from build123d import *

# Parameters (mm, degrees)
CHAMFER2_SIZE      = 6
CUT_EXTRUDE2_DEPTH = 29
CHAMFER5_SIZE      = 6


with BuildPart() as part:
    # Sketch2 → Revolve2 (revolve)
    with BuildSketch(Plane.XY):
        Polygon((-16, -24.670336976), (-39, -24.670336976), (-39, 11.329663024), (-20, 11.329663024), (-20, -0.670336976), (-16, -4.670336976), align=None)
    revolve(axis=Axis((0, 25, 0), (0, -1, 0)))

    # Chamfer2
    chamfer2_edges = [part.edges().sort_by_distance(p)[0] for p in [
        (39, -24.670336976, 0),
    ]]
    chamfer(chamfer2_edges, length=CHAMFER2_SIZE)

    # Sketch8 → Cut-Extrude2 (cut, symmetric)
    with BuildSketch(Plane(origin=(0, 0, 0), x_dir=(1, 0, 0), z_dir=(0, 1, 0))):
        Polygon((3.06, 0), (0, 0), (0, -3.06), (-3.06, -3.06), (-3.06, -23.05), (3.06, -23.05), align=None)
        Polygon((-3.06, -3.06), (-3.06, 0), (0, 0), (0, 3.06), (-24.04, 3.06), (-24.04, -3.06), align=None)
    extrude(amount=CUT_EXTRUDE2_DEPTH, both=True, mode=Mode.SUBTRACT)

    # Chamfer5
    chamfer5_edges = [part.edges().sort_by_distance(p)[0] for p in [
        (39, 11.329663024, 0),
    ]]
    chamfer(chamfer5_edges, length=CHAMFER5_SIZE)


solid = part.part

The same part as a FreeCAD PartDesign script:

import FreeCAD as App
import Part
import Sketcher
from FreeCAD import Vector


def edges_at(feature, points):
    """Names of the edges that pass closest to the given points."""
    edges = feature.Shape.Edges
    near = lambda p: min(range(len(edges)), key=lambda i: edges[i].distToShape(Part.Vertex(*p))[0])
    return sorted({f"Edge{near(p) + 1}" for p in points})

doc = App.newDocument("Part")
body = doc.addObject("PartDesign::Body", "Body")

sketch1 = doc.addObject("Sketcher::SketchObject", "Sketch")
body.addObject(sketch1)
sketch1.AttachmentSupport = (doc.XY_Plane, [""])
sketch1.MapMode = "FlatFace"
sketch1.addGeometry([
    Part.LineSegment(Vector(-39, -25, 0), Vector(-16, -25, 0)),
    Part.LineSegment(Vector(-16, -25, 0), Vector(-16, -5, 0)),
    Part.LineSegment(Vector(-16, -5, 0), Vector(-20, -1, 0)),
    Part.LineSegment(Vector(-20, -1, 0), Vector(-20, 11, 0)),
    Part.LineSegment(Vector(-20, 11, 0), Vector(-39, 11, 0)),
    Part.LineSegment(Vector(-39, 11, 0), Vector(-39, -25, 0)),
], False)
sketch1.addConstraint([
    Sketcher.Constraint("Coincident", 0, 2, 1, 1),
    Sketcher.Constraint("Coincident", 1, 2, 2, 1),
    Sketcher.Constraint("Coincident", 2, 2, 3, 1),
    Sketcher.Constraint("Coincident", 3, 2, 4, 1),
    Sketcher.Constraint("Coincident", 4, 2, 5, 1),
    Sketcher.Constraint("Coincident", 5, 2, 0, 1),
    Sketcher.Constraint("Horizontal", 0),
    Sketcher.Constraint("Vertical", 1),
    Sketcher.Constraint("Vertical", 3),
    Sketcher.Constraint("Horizontal", 4),
    Sketcher.Constraint("Vertical", 5),
    Sketcher.Constraint("DistanceX", 0, 1, 0, 2, 23.0),
    Sketcher.Constraint("DistanceX", 4, 2, 4, 1, 19.0),
    Sketcher.Constraint("DistanceY", 1, 1, 1, 2, 20.0),
    Sketcher.Constraint("DistanceY", 3, 1, 3, 2, 12.0),
    Sketcher.Constraint("DistanceY", 5, 2, 5, 1, 36.0),
    Sketcher.Constraint("DistanceX", 0, 2, -1, 1, 16.0),
    Sketcher.Constraint("DistanceY", 0, 2, -1, 1, 24.670337),
])
revolution = doc.addObject("PartDesign::Revolution", "Revolution")
body.addObject(revolution)
revolution.Profile = sketch1
revolution.ReferenceAxis = (sketch1, ["V_Axis"])
revolution.Angle = 360
doc.recompute()

chamfer = doc.addObject("PartDesign::Chamfer", "Chamfer")
body.addObject(chamfer)
chamfer.Base = (revolution, edges_at(revolution, [(39, -24.67, 0)]))
chamfer.Size = 6

sketch2 = doc.addObject("Sketcher::SketchObject", "Sketch001")
body.addObject(sketch2)
sketch2.AttachmentSupport = (doc.XZ_Plane, [""])
sketch2.MapMode = "FlatFace"
sketch2.addGeometry([
    Part.LineSegment(Vector(3.1, 0, 0), Vector(0, 0, 0)),
    Part.LineSegment(Vector(0, 0, 0), Vector(0, 3.1, 0)),
    Part.LineSegment(Vector(0, 3.1, 0), Vector(-3.1, 3.1, 0)),
    Part.LineSegment(Vector(-3.1, 3.1, 0), Vector(-3.1, 23.1, 0)),
    Part.LineSegment(Vector(-3.1, 23.1, 0), Vector(3.1, 23.1, 0)),
    Part.LineSegment(Vector(3.1, 23.1, 0), Vector(3.1, 0, 0)),
    Part.LineSegment(Vector(-3.1, 3.1, 0), Vector(-3.1, 0, 0)),
    Part.LineSegment(Vector(-3.1, 0, 0), Vector(0, 0, 0)),
    Part.LineSegment(Vector(0, 0, 0), Vector(0, -3.1, 0)),
    Part.LineSegment(Vector(0, -3.1, 0), Vector(-24, -3.1, 0)),
    Part.LineSegment(Vector(-24, -3.1, 0), Vector(-24, 3.1, 0)),
    Part.LineSegment(Vector(-24, 3.1, 0), Vector(-3.1, 3.1, 0)),
], False)
sketch2.addConstraint([
    Sketcher.Constraint("Coincident", 0, 2, 1, 1),
    Sketcher.Constraint("Coincident", 1, 2, 2, 1),
    Sketcher.Constraint("Coincident", 2, 2, 3, 1),
    Sketcher.Constraint("Coincident", 3, 2, 4, 1),
    Sketcher.Constraint("Coincident", 4, 2, 5, 1),
    Sketcher.Constraint("Coincident", 5, 2, 0, 1),
    Sketcher.Constraint("Coincident", 6, 2, 7, 1),
    Sketcher.Constraint("Coincident", 7, 2, 8, 1),
    Sketcher.Constraint("Coincident", 8, 2, 9, 1),
    Sketcher.Constraint("Coincident", 9, 2, 10, 1),
    Sketcher.Constraint("Coincident", 10, 2, 11, 1),
    Sketcher.Constraint("Coincident", 11, 2, 6, 1),
    Sketcher.Constraint("Horizontal", 0),
    Sketcher.Constraint("Vertical", 1),
    Sketcher.Constraint("Horizontal", 2),
    Sketcher.Constraint("Vertical", 3),
    Sketcher.Constraint("Horizontal", 4),
    Sketcher.Constraint("Vertical", 5),
    Sketcher.Constraint("Vertical", 6),
    Sketcher.Constraint("Horizontal", 7),
    Sketcher.Constraint("Vertical", 8),
    Sketcher.Constraint("Horizontal", 9),
    Sketcher.Constraint("Vertical", 10),
    Sketcher.Constraint("Horizontal", 11),
    Sketcher.Constraint("Coincident", 0, 2, -1, 1),
    Sketcher.Constraint("Coincident", 7, 2, -1, 1),
    Sketcher.Constraint("Coincident", 11, 2, 2, 2),
    Sketcher.Constraint("Equal", 0, 2),
    Sketcher.Constraint("Equal", 7, 1),
    Sketcher.Constraint("Equal", 6, 8),
    Sketcher.Constraint("DistanceX", 0, 2, 0, 1, 3.06),
    Sketcher.Constraint("DistanceX", 9, 2, 9, 1, 24.04),
    Sketcher.Constraint("DistanceY", 3, 1, 3, 2, 19.99),
])
pocket1 = doc.addObject("PartDesign::Pocket", "Pocket")
body.addObject(pocket1)
pocket1.Profile = sketch2
pocket1.Length = 58
pocket1.Midplane = True
doc.recompute()

chamfer2 = doc.addObject("PartDesign::Chamfer", "Chamfer001")
body.addObject(chamfer2)
chamfer2.Base = (pocket1, edges_at(pocket1, [(39, 11.33, 0)]))
chamfer2.Size = 6

doc.recompute()
